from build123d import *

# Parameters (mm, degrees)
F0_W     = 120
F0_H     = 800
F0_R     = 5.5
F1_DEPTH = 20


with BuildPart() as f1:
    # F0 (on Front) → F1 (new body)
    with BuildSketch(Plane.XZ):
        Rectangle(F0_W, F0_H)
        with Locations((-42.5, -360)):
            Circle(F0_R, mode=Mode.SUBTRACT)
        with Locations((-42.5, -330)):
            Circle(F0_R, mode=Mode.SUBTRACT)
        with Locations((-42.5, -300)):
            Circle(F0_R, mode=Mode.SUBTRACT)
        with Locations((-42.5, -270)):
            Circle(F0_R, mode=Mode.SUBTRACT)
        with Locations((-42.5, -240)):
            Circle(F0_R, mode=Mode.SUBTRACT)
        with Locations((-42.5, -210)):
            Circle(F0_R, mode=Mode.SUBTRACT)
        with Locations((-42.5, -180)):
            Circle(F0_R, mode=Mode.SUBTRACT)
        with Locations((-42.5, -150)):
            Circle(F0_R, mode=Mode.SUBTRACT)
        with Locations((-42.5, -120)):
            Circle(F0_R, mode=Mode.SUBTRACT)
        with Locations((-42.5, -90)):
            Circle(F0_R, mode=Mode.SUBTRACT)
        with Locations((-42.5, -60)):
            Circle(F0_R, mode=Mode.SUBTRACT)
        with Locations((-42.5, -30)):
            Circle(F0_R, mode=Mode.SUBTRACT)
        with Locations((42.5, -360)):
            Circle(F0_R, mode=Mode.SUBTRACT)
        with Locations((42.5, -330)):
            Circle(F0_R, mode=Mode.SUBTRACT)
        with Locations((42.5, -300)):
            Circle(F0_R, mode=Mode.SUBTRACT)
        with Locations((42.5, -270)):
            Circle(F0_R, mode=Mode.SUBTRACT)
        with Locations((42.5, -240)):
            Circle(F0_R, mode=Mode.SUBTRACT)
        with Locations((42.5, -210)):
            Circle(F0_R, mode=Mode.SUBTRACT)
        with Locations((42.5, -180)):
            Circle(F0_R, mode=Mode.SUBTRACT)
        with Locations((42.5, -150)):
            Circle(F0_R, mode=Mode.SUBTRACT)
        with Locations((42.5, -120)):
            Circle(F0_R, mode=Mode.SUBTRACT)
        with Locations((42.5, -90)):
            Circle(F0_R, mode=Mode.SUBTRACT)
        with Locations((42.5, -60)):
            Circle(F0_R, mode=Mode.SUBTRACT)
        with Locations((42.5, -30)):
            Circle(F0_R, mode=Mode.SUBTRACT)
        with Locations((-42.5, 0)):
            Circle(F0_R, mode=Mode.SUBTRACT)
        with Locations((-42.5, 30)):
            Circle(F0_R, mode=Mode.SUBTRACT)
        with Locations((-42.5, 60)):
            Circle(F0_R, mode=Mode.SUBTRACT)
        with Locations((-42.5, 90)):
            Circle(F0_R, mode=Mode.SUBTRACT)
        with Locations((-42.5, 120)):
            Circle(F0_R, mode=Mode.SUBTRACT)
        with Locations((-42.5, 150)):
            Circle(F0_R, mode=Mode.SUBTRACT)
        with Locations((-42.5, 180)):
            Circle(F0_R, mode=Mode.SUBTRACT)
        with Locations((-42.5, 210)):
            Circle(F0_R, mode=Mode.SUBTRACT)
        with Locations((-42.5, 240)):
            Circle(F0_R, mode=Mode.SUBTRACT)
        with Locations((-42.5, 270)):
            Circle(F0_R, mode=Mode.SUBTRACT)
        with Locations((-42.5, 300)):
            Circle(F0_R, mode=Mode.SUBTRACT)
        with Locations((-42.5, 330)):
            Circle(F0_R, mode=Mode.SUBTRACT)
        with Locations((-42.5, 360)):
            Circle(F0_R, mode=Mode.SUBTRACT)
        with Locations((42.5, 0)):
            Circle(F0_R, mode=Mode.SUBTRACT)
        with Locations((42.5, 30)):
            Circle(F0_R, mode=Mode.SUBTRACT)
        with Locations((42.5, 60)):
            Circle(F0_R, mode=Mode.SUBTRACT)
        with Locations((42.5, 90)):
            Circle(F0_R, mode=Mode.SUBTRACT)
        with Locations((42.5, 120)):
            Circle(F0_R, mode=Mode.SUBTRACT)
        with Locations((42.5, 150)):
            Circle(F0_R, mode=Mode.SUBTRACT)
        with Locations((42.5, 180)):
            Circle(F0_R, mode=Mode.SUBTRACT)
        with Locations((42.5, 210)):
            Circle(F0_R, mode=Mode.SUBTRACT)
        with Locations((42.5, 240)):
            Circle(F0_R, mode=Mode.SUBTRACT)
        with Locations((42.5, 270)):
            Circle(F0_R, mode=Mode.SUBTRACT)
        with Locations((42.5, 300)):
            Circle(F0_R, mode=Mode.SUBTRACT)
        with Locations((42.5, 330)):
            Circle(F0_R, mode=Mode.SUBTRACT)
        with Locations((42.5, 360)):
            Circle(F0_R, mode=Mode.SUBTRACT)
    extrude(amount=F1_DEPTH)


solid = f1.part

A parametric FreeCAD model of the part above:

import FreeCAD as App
import Part
import Sketcher


def add_polygon(sketch, points):
    """Adds a closed chain of lines whose ends are joined by coincident constraints."""
    first, n = sketch.GeometryCount, len(points)
    for a, b in zip(points, points[1:] + points[:1]):
        sketch.addGeometry(Part.LineSegment(App.Vector(*a, 0), App.Vector(*b, 0)), False)
    for i in range(n):
        sketch.addConstraint(Sketcher.Constraint("Coincident", first + i, 2, first + (i + 1) % n, 1))

doc = App.newDocument("Part")
body = doc.addObject("PartDesign::Body", "Body")

sketch1 = body.newObject("Sketcher::SketchObject", "Sketch")
sketch1.AttachmentSupport = (doc.getObject("XZ_Plane"), [""])
sketch1.MapMode = "FlatFace"
add_polygon(sketch1, [(-60, 400), (-60, -400), (60, -400), (60, 400)])
sketch1.addGeometry(Part.Circle(App.Vector(-42.5, -360, 0), App.Vector(0, 0, 1), 5.5), False)
sketch1.addGeometry(Part.Circle(App.Vector(-42.5, -330, 0), App.Vector(0, 0, 1), 5.5), False)
sketch1.addGeometry(Part.Circle(App.Vector(-42.5, -300, 0), App.Vector(0, 0, 1), 5.5), False)
sketch1.addGeometry(Part.Circle(App.Vector(-42.5, -270, 0), App.Vector(0, 0, 1), 5.5), False)
sketch1.addGeometry(Part.Circle(App.Vector(-42.5, -240, 0), App.Vector(0, 0, 1), 5.5), False)
sketch1.addGeometry(Part.Circle(App.Vector(-42.5, -210, 0), App.Vector(0, 0, 1), 5.5), False)
sketch1.addGeometry(Part.Circle(App.Vector(-42.5, -180, 0), App.Vector(0, 0, 1), 5.5), False)
sketch1.addGeometry(Part.Circle(App.Vector(-42.5, -150, 0), App.Vector(0, 0, 1), 5.5), False)
sketch1.addGeometry(Part.Circle(App.Vector(-42.5, -120, 0), App.Vector(0, 0, 1), 5.5), False)
sketch1.addGeometry(Part.Circle(App.Vector(-42.5, -90, 0), App.Vector(0, 0, 1), 5.5), False)
sketch1.addGeometry(Part.Circle(App.Vector(-42.5, -60, 0), App.Vector(0, 0, 1), 5.5), False)
sketch1.addGeometry(Part.Circle(App.Vector(-42.5, -30, 0), App.Vector(0, 0, 1), 5.5), False)
sketch1.addGeometry(Part.Circle(App.Vector(42.5, -360, 0), App.Vector(0, 0, 1), 5.5), False)
sketch1.addGeometry(Part.Circle(App.Vector(42.5, -330, 0), App.Vector(0, 0, 1), 5.5), False)
sketch1.addGeometry(Part.Circle(App.Vector(42.5, -300, 0), App.Vector(0, 0, 1), 5.5), False)
sketch1.addGeometry(Part.Circle(App.Vector(42.5, -270, 0), App.Vector(0, 0, 1), 5.5), False)
sketch1.addGeometry(Part.Circle(App.Vector(42.5, -240, 0), App.Vector(0, 0, 1), 5.5), False)
sketch1.addGeometry(Part.Circle(App.Vector(42.5, -210, 0), App.Vector(0, 0, 1), 5.5), False)
sketch1.addGeometry(Part.Circle(App.Vector(42.5, -180, 0), App.Vector(0, 0, 1), 5.5), False)
sketch1.addGeometry(Part.Circle(App.Vector(42.5, -150, 0), App.Vector(0, 0, 1), 5.5), False)
sketch1.addGeometry(Part.Circle(App.Vector(42.5, -120, 0), App.Vector(0, 0, 1), 5.5), False)
sketch1.addGeometry(Part.Circle(App.Vector(42.5, -90, 0), App.Vector(0, 0, 1), 5.5), False)
sketch1.addGeometry(Part.Circle(App.Vector(42.5, -60, 0), App.Vector(0, 0, 1), 5.5), False)
sketch1.addGeometry(Part.Circle(App.Vector(42.5, -30, 0), App.Vector(0, 0, 1), 5.5), False)
sketch1.addGeometry(Part.Circle(App.Vector(-42.5, 0, 0), App.Vector(0, 0, 1), 5.5), False)
sketch1.addGeometry(Part.Circle(App.Vector(-42.5, 30, 0), App.Vector(0, 0, 1), 5.5), False)
sketch1.addGeometry(Part.Circle(App.Vector(-42.5, 60, 0), App.Vector(0, 0, 1), 5.5), False)
sketch1.addGeometry(Part.Circle(App.Vector(-42.5, 90, 0), App.Vector(0, 0, 1), 5.5), False)
sketch1.addGeometry(Part.Circle(App.Vector(-42.5, 120, 0), App.Vector(0, 0, 1), 5.5), False)
sketch1.addGeometry(Part.Circle(App.Vector(-42.5, 150, 0), App.Vector(0, 0, 1), 5.5), False)
sketch1.addGeometry(Part.Circle(App.Vector(-42.5, 180, 0), App.Vector(0, 0, 1), 5.5), False)
sketch1.addGeometry(Part.Circle(App.Vector(-42.5, 210, 0), App.Vector(0, 0, 1), 5.5), False)
sketch1.addGeometry(Part.Circle(App.Vector(-42.5, 240, 0), App.Vector(0, 0, 1), 5.5), False)
sketch1.addGeometry(Part.Circle(App.Vector(-42.5, 270, 0), App.Vector(0, 0, 1), 5.5), False)
sketch1.addGeometry(Part.Circle(App.Vector(-42.5, 300, 0), App.Vector(0, 0, 1), 5.5), False)
sketch1.addGeometry(Part.Circle(App.Vector(-42.5, 330, 0), App.Vector(0, 0, 1), 5.5), False)
sketch1.addGeometry(Part.Circle(App.Vector(-42.5, 360, 0), App.Vector(0, 0, 1), 5.5), False)
sketch1.addGeometry(Part.Circle(App.Vector(42.5, 0, 0), App.Vector(0, 0, 1), 5.5), False)
sketch1.addGeometry(Part.Circle(App.Vector(42.5, 30, 0), App.Vector(0, 0, 1), 5.5), False)
sketch1.addGeometry(Part.Circle(App.Vector(42.5, 60, 0), App.Vector(0, 0, 1), 5.5), False)
sketch1.addGeometry(Part.Circle(App.Vector(42.5, 90, 0), App.Vector(0, 0, 1), 5.5), False)
sketch1.addGeometry(Part.Circle(App.Vector(42.5, 120, 0), App.Vector(0, 0, 1), 5.5), False)
sketch1.addGeometry(Part.Circle(App.Vector(42.5, 150, 0), App.Vector(0, 0, 1), 5.5), False)
sketch1.addGeometry(Part.Circle(App.Vector(42.5, 180, 0), App.Vector(0, 0, 1), 5.5), False)
sketch1.addGeometry(Part.Circle(App.Vector(42.5, 210, 0), App.Vector(0, 0, 1), 5.5), False)
sketch1.addGeometry(Part.Circle(App.Vector(42.5, 240, 0), App.Vector(0, 0, 1), 5.5), False)
sketch1.addGeometry(Part.Circle(App.Vector(42.5, 270, 0), App.Vector(0, 0, 1), 5.5), False)
sketch1.addGeometry(Part.Circle(App.Vector(42.5, 300, 0), App.Vector(0, 0, 1), 5.5), False)
sketch1.addGeometry(Part.Circle(App.Vector(42.5, 330, 0), App.Vector(0, 0, 1), 5.5), False)
sketch1.addGeometry(Part.Circle(App.Vector(42.5, 360, 0), App.Vector(0, 0, 1), 5.5), False)
sketch1.addConstraint([
    Sketcher.Constraint("Vertical", 0),
    Sketcher.Constraint("Horizontal", 1),
    Sketcher.Constraint("Vertical", 2),
    Sketcher.Constraint("Horizontal", 3),
    Sketcher.Constraint("Equal", 4, 5),
    Sketcher.Constraint("Equal", 5, 6),
    Sketcher.Constraint("Equal", 6, 7),
    Sketcher.Constraint("Equal", 7, 8),
    Sketcher.Constraint("Equal", 8, 9),
    Sketcher.Constraint("Equal", 9, 10),
    Sketcher.Constraint("Equal", 10, 11),
    Sketcher.Constraint("Equal", 11, 12),
    Sketcher.Constraint("Equal", 12, 13),
    Sketcher.Constraint("Equal", 13, 14),
    Sketcher.Constraint("Equal", 14, 15),
    Sketcher.Constraint("Equal", 15, 16),
    Sketcher.Constraint("Equal", 16, 17),
    Sketcher.Constraint("Equal", 17, 18),
    Sketcher.Constraint("Equal", 18, 19),
    Sketcher.Constraint("Equal", 19, 20),
    Sketcher.Constraint("Equal", 20, 21),
    Sketcher.Constraint("Equal", 21, 22),
    Sketcher.Constraint("Equal", 22, 23),
    Sketcher.Constraint("Equal", 23, 24),
    Sketcher.Constraint("Equal", 24, 25),
    Sketcher.Constraint("Equal", 25, 26),
    Sketcher.Constraint("Equal", 26, 27),
    Sketcher.Constraint("Equal", 27, 28),
    Sketcher.Constraint("Equal", 28, 29),
    Sketcher.Constraint("Equal", 29, 30),
    Sketcher.Constraint("Equal", 30, 31),
    Sketcher.Constraint("Equal", 31, 32),
    Sketcher.Constraint("Equal", 32, 33),
    Sketcher.Constraint("Equal", 33, 34),
    Sketcher.Constraint("Equal", 34, 35),
    Sketcher.Constraint("Equal", 35, 36),
    Sketcher.Constraint("Equal", 36, 37),
    Sketcher.Constraint("Equal", 37, 38),
    Sketcher.Constraint("Equal", 38, 39),
    Sketcher.Constraint("Equal", 39, 40),
    Sketcher.Constraint("Equal", 40, 41),
    Sketcher.Constraint("Equal", 41, 42),
    Sketcher.Constraint("Equal", 42, 43),
    Sketcher.Constraint("Equal", 43, 44),
    Sketcher.Constraint("Equal", 44, 45),
    Sketcher.Constraint("Equal", 45, 46),
    Sketcher.Constraint("Equal", 46, 47),
    Sketcher.Constraint("Equal", 47, 48),
    Sketcher.Constraint("Equal", 48, 49),
    Sketcher.Constraint("Equal", 49, 50),
    Sketcher.Constraint("Equal", 50, 51),
    Sketcher.Constraint("Equal", 51, 52),
    Sketcher.Constraint("Equal", 52, 53),
    Sketcher.Constraint("Symmetric", 27, 3, 29, 3, -1, 1),
    Sketcher.Constraint("Symmetric", 26, 3, 30, 3, -1, 1),
    Sketcher.Constraint("Symmetric", 25, 3, 31, 3, -1, 1),
    Sketcher.Constraint("Symmetric", 24, 3, 32, 3, -1, 1),
    Sketcher.Constraint("Symmetric", 23, 3, 33, 3, -1, 1),
    Sketcher.Constraint("Symmetric", 22, 3, 34, 3, -1, 1),
    Sketcher.Constraint("Symmetric", 21, 3, 35, 3, -1, 1),
    Sketcher.Constraint("Symmetric", 20, 3, 36, 3, -1, 1),
    Sketcher.Constraint("Symmetric", 19, 3, 37, 3, -1, 1),
    Sketcher.Constraint("Symmetric", 18, 3, 38, 3, -1, 1),
    Sketcher.Constraint("Symmetric", 17, 3, 39, 3, -1, 1),
    Sketcher.Constraint("Symmetric", 16, 3, 40, 3, -1, 1),
    Sketcher.Constraint("Symmetric", 28, 3, 41, 3, -1, 1),
    Sketcher.Constraint("Symmetric", 15, 3, 42, 3, -1, 1),
    Sketcher.Constraint("Symmetric", 14, 3, 43, 3, -1, 1),
    Sketcher.Constraint("Symmetric", 13, 3, 44, 3, -1, 1),
    Sketcher.Constraint("Symmetric", 12, 3, 45, 3, -1, 1),
    Sketcher.Constraint("Symmetric", 11, 3, 46, 3, -1, 1),
    Sketcher.Constraint("Symmetric", 10, 3, 47, 3, -1, 1),
    Sketcher.Constraint("Symmetric", 9, 3, 48, 3, -1, 1),
    Sketcher.Constraint("Symmetric", 8, 3, 49, 3, -1, 1),
    Sketcher.Constraint("Symmetric", 7, 3, 50, 3, -1, 1),
    Sketcher.Constraint("Symmetric", 6, 3, 51, 3, -1, 1),
    Sketcher.Constraint("Symmetric", 5, 3, 52, 3, -1, 1),
    Sketcher.Constraint("Symmetric", 4, 3, 53, 3, -1, 1),
    Sketcher.Constraint("Symmetric", 0, 2, 2, 2, -1, 1),
    Sketcher.Constraint("Symmetric", 4, 3, 16, 3, -2),
    Sketcher.Constraint("Symmetric", 5, 3, 17, 3, -2),
    Sketcher.Constraint("Symmetric", 6, 3, 18, 3, -2),
    Sketcher.Constraint("Symmetric", 7, 3, 19, 3, -2),
    Sketcher.Constraint("Symmetric", 8, 3, 20, 3, -2),
    Sketcher.Constraint("Symmetric", 9, 3, 21, 3, -2),
    Sketcher.Constraint("Symmetric", 10, 3, 22, 3, -2),
    Sketcher.Constraint("Symmetric", 11, 3, 23, 3, -2),
    Sketcher.Constraint("Symmetric", 12, 3, 24, 3, -2),
    Sketcher.Constraint("Symmetric", 13, 3, 25, 3, -2),
    Sketcher.Constraint("Symmetric", 14, 3, 26, 3, -2),
    Sketcher.Constraint("Symmetric", 15, 3, 27, 3, -2),
    Sketcher.Constraint("PointOnObject", 28, 3, -1),
    Sketcher.Constraint("Vertical", 4, 3, 5, 3),
    Sketcher.Constraint("Vertical", 5, 3, 6, 3),
    Sketcher.Constraint("Vertical", 6, 3, 7, 3),
    Sketcher.Constraint("Vertical", 7, 3, 8, 3),
    Sketcher.Constraint("Vertical", 8, 3, 9, 3),
    Sketcher.Constraint("Vertical", 9, 3, 10, 3),
    Sketcher.Constraint("Vertical", 10, 3, 11, 3),
    Sketcher.Constraint("Vertical", 11, 3, 12, 3),
    Sketcher.Constraint("Vertical", 12, 3, 13, 3),
    Sketcher.Constraint("Vertical", 13, 3, 14, 3),
    Sketcher.Constraint("Vertical", 14, 3, 15, 3),
    Sketcher.Constraint("Vertical", 15, 3, 28, 3),
    Sketcher.Constraint("Diameter", 4, 11.0),
    Sketcher.Constraint("DistanceX", 1, 1, 1, 2, 120.0),
    Sketcher.Constraint("DistanceY", 0, 2, 0, 1, 800.0),
    Sketcher.Constraint("DistanceY", 4, 3, -1, 1, 360.0),
    Sketcher.Constraint("DistanceY", 5, 3, -1, 1, 330.0),
    Sketcher.Constraint("DistanceY", 6, 3, -1, 1, 300.0),
    Sketcher.Constraint("DistanceY", 7, 3, -1, 1, 270.0),
    Sketcher.Constraint("DistanceY", 8, 3, -1, 1, 240.0),
    Sketcher.Constraint("DistanceY", 9, 3, -1, 1, 210.0),
    Sketcher.Constraint("DistanceY", 10, 3, -1, 1, 180.0),
    Sketcher.Constraint("DistanceY", 11, 3, -1, 1, 150.0),
    Sketcher.Constraint("DistanceY", 12, 3, -1, 1, 120.0),
    Sketcher.Constraint("DistanceY", 13, 3, -1, 1, 90.0),
    Sketcher.Constraint("DistanceY", 14, 3, -1, 1, 60.0),
    Sketcher.Constraint("DistanceY", 15, 3, -1, 1, 30.0),
    Sketcher.Constraint("DistanceX", 4, 3, 16, 3, 85.0),
])
pad1 = body.newObject("PartDesign::Pad", "Pad")
pad1.Profile = sketch1
pad1.Length = 20

doc.recompute()
